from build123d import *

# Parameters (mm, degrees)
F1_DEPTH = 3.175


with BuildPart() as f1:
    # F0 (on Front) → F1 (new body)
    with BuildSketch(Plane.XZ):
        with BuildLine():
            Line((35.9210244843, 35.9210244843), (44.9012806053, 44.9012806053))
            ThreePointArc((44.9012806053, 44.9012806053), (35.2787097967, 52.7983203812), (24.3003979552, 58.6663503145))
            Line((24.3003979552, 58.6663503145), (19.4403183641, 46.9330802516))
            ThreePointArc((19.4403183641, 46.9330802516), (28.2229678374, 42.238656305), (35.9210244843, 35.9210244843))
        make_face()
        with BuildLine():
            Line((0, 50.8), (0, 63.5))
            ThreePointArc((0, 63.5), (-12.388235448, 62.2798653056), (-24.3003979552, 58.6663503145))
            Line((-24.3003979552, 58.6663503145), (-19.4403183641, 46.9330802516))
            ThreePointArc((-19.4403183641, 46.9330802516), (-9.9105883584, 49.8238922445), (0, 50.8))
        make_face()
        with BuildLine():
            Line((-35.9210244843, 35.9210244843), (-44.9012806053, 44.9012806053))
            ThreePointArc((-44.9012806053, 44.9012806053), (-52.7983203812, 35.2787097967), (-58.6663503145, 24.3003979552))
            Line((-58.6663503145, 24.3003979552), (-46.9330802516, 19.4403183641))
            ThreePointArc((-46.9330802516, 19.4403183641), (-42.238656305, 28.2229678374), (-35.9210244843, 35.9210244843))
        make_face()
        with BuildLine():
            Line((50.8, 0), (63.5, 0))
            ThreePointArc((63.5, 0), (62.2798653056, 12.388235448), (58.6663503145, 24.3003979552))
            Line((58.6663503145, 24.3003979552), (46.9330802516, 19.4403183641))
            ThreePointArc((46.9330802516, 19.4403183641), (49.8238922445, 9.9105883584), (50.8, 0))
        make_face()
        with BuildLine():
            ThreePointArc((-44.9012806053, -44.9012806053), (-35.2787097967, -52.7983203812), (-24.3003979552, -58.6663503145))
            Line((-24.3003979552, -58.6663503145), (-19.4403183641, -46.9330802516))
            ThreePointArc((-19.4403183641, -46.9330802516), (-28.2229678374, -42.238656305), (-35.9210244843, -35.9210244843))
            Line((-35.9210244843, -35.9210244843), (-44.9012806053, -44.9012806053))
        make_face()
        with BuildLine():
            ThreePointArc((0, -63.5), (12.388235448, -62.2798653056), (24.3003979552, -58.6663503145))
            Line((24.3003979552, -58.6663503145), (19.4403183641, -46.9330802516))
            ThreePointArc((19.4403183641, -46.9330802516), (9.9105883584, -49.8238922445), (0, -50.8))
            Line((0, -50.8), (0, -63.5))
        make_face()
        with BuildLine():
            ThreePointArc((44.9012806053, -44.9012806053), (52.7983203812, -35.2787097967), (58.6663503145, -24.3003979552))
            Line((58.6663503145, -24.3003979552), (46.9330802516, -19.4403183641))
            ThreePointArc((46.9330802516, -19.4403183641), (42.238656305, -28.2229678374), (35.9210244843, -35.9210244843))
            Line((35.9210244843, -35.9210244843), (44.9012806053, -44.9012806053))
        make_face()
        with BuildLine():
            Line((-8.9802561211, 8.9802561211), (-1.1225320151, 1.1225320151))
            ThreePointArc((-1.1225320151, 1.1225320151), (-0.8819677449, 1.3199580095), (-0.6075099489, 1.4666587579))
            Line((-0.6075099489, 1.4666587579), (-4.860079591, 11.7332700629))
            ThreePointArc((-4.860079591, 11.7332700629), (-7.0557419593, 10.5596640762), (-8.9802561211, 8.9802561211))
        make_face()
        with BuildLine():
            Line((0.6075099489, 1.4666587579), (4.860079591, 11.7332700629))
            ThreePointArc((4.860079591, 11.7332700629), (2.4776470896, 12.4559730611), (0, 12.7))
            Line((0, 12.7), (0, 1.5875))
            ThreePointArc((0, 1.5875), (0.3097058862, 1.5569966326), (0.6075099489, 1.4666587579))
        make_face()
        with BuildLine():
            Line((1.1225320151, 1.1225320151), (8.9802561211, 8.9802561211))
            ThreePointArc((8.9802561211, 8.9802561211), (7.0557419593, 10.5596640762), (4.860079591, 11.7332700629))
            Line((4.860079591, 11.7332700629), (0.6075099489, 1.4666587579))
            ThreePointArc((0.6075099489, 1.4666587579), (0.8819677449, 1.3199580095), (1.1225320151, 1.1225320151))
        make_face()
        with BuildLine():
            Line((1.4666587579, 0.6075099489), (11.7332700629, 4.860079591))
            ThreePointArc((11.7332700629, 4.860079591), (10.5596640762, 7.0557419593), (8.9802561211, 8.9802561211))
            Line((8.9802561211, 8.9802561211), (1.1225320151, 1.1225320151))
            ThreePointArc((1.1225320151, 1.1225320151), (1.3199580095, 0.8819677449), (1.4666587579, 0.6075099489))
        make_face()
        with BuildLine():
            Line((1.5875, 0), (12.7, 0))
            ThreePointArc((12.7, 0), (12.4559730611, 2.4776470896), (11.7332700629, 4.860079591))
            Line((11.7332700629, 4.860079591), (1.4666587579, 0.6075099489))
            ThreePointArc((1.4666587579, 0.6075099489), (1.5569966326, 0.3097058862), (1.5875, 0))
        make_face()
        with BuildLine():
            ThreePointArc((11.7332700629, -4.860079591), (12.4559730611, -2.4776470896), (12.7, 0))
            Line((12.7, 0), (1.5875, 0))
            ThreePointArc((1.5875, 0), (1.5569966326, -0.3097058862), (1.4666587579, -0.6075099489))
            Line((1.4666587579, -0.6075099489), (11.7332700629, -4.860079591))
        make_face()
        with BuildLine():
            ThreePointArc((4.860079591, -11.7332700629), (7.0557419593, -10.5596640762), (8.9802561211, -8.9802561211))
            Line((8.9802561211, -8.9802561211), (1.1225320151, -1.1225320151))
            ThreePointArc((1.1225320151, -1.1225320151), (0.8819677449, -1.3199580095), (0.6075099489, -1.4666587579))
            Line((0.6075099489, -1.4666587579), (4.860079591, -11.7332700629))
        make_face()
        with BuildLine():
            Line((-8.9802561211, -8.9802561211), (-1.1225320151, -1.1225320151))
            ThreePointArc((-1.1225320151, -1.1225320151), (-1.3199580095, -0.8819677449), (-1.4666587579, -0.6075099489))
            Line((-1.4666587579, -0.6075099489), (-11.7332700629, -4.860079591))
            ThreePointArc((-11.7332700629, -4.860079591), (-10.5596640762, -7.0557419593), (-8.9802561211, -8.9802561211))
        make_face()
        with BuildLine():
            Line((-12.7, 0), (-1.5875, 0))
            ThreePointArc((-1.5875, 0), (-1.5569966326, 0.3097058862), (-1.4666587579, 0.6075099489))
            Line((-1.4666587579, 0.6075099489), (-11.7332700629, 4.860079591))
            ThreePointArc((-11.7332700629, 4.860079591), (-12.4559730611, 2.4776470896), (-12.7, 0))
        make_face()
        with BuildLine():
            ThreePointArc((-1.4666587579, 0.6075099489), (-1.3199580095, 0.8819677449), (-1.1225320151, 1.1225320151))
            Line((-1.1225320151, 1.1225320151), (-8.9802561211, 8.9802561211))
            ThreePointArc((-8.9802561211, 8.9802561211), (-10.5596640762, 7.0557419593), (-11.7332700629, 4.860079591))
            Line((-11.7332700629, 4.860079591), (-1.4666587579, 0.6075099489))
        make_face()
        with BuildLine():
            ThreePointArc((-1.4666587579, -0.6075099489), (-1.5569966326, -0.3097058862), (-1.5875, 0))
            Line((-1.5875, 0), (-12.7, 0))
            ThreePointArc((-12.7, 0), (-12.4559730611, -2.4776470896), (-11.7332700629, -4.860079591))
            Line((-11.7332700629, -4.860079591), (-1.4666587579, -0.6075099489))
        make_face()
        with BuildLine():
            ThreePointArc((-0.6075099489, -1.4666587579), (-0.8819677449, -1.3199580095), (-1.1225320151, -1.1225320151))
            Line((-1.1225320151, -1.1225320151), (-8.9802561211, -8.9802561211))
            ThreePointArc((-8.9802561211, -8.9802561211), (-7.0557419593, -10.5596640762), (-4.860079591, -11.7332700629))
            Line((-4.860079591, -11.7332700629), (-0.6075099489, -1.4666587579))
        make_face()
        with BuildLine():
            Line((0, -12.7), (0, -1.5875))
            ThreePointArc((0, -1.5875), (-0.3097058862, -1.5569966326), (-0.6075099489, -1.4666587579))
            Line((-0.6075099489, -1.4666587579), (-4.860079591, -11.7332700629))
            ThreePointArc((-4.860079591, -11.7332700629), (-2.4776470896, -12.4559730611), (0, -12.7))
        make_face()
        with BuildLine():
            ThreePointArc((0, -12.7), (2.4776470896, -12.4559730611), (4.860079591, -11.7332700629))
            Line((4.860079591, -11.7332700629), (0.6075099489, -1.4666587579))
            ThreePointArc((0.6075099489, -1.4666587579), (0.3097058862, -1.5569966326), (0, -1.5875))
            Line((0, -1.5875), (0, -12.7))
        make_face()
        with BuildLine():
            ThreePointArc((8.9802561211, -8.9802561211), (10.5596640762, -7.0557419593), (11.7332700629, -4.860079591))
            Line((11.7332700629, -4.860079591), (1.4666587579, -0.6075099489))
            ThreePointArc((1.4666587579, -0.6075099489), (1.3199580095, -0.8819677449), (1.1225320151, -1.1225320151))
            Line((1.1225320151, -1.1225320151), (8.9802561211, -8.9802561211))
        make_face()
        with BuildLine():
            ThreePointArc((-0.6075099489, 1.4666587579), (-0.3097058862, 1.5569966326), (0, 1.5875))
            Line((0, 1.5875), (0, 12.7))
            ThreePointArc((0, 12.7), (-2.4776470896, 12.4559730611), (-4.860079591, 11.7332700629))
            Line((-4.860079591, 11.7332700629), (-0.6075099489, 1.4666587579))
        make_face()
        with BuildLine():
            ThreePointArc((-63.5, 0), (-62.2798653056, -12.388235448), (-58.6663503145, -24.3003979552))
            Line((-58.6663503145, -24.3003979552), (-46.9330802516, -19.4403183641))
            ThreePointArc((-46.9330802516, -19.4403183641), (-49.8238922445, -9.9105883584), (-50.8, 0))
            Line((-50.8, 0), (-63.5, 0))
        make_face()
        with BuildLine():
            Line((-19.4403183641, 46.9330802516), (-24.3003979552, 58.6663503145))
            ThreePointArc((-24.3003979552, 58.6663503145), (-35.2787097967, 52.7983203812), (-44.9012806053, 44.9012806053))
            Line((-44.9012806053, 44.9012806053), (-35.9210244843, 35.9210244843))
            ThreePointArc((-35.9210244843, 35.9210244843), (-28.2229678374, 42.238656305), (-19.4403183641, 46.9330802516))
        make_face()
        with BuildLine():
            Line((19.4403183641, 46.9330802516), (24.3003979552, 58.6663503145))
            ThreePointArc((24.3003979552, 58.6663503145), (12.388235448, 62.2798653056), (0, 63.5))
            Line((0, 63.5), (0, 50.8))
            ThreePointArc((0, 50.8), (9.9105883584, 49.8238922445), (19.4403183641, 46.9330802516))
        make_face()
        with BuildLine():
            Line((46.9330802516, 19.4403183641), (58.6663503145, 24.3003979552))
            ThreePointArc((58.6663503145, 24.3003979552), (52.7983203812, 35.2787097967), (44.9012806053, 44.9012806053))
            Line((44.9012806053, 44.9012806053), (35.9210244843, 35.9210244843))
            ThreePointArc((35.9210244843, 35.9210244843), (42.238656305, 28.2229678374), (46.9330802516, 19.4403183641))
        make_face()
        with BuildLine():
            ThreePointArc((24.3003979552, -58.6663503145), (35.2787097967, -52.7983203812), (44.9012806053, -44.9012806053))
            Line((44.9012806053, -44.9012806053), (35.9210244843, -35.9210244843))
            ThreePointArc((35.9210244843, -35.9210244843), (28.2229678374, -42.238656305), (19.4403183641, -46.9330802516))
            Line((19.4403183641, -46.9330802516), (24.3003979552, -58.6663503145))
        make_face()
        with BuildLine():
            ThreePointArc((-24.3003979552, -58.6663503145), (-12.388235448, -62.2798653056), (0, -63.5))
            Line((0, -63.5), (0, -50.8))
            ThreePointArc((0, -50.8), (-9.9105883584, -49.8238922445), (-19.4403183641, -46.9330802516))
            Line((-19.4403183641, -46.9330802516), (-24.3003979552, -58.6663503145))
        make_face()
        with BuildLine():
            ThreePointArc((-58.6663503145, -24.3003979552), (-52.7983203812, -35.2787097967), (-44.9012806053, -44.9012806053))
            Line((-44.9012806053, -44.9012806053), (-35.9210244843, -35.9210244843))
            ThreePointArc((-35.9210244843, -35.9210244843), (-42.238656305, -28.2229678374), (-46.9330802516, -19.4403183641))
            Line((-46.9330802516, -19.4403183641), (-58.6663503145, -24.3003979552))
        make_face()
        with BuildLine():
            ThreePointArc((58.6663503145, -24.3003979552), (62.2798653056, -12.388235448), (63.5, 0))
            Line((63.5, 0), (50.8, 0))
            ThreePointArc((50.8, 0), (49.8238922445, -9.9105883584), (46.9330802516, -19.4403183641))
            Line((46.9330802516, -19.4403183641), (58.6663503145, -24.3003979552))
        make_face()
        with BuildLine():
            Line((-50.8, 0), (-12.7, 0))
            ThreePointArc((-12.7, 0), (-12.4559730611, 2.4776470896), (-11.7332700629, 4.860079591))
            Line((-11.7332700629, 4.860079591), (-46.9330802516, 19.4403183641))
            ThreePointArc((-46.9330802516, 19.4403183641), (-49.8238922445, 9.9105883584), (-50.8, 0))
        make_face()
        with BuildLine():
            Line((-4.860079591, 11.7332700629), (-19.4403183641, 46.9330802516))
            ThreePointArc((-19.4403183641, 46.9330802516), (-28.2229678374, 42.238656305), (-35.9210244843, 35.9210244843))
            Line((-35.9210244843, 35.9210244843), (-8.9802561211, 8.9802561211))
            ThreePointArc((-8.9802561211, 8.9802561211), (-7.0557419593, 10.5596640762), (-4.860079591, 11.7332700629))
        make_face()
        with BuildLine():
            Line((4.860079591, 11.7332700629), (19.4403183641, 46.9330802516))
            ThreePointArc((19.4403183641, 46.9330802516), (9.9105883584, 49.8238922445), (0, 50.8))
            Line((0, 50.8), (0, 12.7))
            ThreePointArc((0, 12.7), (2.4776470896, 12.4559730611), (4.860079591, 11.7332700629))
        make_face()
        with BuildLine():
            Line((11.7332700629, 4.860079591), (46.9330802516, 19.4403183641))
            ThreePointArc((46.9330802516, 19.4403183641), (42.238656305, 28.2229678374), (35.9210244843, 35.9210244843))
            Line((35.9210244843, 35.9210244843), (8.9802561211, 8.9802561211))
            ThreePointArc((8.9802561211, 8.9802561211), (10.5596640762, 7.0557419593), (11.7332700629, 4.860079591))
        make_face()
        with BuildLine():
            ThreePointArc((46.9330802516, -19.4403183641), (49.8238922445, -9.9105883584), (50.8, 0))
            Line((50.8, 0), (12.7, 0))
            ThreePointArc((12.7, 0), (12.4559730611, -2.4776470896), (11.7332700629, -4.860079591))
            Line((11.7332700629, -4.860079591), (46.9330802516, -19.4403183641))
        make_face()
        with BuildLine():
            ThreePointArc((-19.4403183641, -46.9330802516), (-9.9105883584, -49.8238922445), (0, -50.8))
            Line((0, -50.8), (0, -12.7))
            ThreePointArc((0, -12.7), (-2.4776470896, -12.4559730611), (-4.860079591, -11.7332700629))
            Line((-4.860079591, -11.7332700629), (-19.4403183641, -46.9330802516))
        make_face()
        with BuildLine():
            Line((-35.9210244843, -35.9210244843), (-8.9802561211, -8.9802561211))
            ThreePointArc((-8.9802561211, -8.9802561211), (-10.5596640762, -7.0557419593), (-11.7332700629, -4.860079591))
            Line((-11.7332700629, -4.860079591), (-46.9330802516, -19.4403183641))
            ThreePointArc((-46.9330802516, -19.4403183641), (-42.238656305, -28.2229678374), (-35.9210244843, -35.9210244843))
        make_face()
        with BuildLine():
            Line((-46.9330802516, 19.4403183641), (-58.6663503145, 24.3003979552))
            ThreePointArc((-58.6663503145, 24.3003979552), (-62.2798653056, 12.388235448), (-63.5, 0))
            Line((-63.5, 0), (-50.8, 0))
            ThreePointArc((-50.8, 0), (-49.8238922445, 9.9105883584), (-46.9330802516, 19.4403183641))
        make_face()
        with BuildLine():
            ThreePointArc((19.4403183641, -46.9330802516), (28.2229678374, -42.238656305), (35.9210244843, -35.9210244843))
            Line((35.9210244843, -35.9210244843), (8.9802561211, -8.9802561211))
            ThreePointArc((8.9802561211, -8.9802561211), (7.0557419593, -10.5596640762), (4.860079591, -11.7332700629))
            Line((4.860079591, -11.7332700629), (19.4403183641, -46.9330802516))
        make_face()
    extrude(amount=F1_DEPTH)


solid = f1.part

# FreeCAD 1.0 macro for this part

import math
import FreeCAD as App
import Part
import Sketcher

V = App.Vector
Q = App.Units.Quantity

doc = App.newDocument("Part")
body = doc.addObject("PartDesign::Body", "Body")

# Sketch on XZ plane
sketch1 = body.newObject("Sketcher::SketchObject", "Sketch")
sketch1.AttachmentSupport = (doc.getObject("XZ_Plane"), [""])
sketch1.MapMode = "FlatFace"
sketch1.addGeometry([
    Part.ArcOfCircle(Part.Circle(V(0, 0, 0), V(0, 0, 1), 63.5), math.radians(135), math.radians(157)),  # 0
    Part.ArcOfCircle(Part.Circle(V(0, 0, 0), V(0, 0, 1), 63.5), math.radians(158), math.radians(180)),  # 1
    Part.ArcOfCircle(Part.Circle(V(0, 0, 0), V(0, 0, 1), 63.5), math.radians(180), math.radians(202)),  # 2
    Part.ArcOfCircle(Part.Circle(V(0, 0, 0), V(0, 0, 1), 63.5), math.radians(-157), math.radians(-135)),  # 3
    Part.ArcOfCircle(Part.Circle(V(0, 0, 0), V(0, 0, 1), 63.5), math.radians(-135), math.radians(-113)),  # 4
    Part.ArcOfCircle(Part.Circle(V(0, 0, 0), V(0, 0, 1), 63.5), math.radians(-112), math.radians(-90)),  # 5
    Part.ArcOfCircle(Part.Circle(V(0, 0, 0), V(0, 0, 1), 63.5), math.radians(-90), math.radians(-68)),  # 6
    Part.ArcOfCircle(Part.Circle(V(0, 0, 0), V(0, 0, 1), 63.5), math.radians(-67), math.radians(-45)),  # 7
    Part.ArcOfCircle(Part.Circle(V(0, 0, 0), V(0, 0, 1), 63.5), math.radians(-45), math.radians(-23)),  # 8
    Part.ArcOfCircle(Part.Circle(V(0, 0, 0), V(0, 0, 1), 63.5), math.radians(-22), math.radians(0)),  # 9
    Part.ArcOfCircle(Part.Circle(V(0, 0, 0), V(0, 0, 1), 63.5), math.radians(0), math.radians(22)),  # 10
    Part.ArcOfCircle(Part.Circle(V(0, 0, 0), V(0, 0, 1), 63.5), math.radians(23), math.radians(45)),  # 11
    Part.ArcOfCircle(Part.Circle(V(0, 0, 0), V(0, 0, 1), 63.5), math.radians(45), math.radians(67)),  # 12
    Part.ArcOfCircle(Part.Circle(V(0, 0, 0), V(0, 0, 1), 63.5), math.radians(68), math.radians(90)),  # 13
    Part.ArcOfCircle(Part.Circle(V(0, 0, 0), V(0, 0, 1), 63.5), math.radians(90), math.radians(112)),  # 14
    Part.ArcOfCircle(Part.Circle(V(0, 0, 0), V(0, 0, 1), 63.5), math.radians(113), math.radians(135)),  # 15
    Part.ArcOfCircle(Part.Circle(V(0, 0, 0), V(0, 0, 1), 50.8), math.radians(-135), math.radians(-112)),  # 16
    Part.LineSegment(V(-35.9, -35.9, 0), V(-9, -9, 0)),  # 17
    Part.ArcOfCircle(Part.Circle(V(0, 0, 0), V(0, 0, 1), 12.7), math.radians(-135), math.radians(-113)),  # 18
    Part.LineSegment(V(-4.9, -11.7, 0), V(-19.4, -46.9, 0)),  # 19
    Part.ArcOfCircle(Part.Circle(V(0, 0, 0), V(0, 0, 1), 50.8), math.radians(180), math.radians(202)),  # 20
    Part.LineSegment(V(-50.8, 0, 0), V(-12.7, 0, 0)),  # 21
    Part.ArcOfCircle(Part.Circle(V(0, 0, 0), V(0, 0, 1), 12.7), math.radians(180), math.radians(202)),  # 22
    Part.LineSegment(V(-11.7, -4.9, 0), V(-46.9, -19.4, 0)),  # 23
    Part.ArcOfCircle(Part.Circle(V(0, 0, 0), V(0, 0, 1), 50.8), math.radians(-90), math.radians(-68)),  # 24
    Part.LineSegment(V(0, -50.8, 0), V(0, -12.7, 0)),  # 25
    Part.ArcOfCircle(Part.Circle(V(0, 0, 0), V(0, 0, 1), 12.7), math.radians(-90), math.radians(-68)),  # 26
    Part.LineSegment(V(4.9, -11.7, 0), V(19.4, -46.9, 0)),  # 27
    Part.ArcOfCircle(Part.Circle(V(0, 0, 0), V(0, 0, 1), 12.7), math.radians(-45), math.radians(-23)),  # 28
    Part.LineSegment(V(11.7, -4.9, 0), V(46.9, -19.4, 0)),  # 29
    Part.ArcOfCircle(Part.Circle(V(0, 0, 0), V(0, 0, 1), 50.8), math.radians(-45), math.radians(-22)),  # 30
    Part.LineSegment(V(35.9, -35.9, 0), V(9, -9, 0)),  # 31
    Part.ArcOfCircle(Part.Circle(V(0, 0, 0), V(0, 0, 1), 1.6), math.radians(113), math.radians(135)),  # 32
    Part.ArcOfCircle(Part.Circle(V(0, 0, 0), V(0, 0, 1), 1.6), math.radians(90), math.radians(112)),  # 33
    Part.ArcOfCircle(Part.Circle(V(0, 0, 0), V(0, 0, 1), 1.6), math.radians(68), math.radians(90)),  # 34
    Part.ArcOfCircle(Part.Circle(V(0, 0, 0), V(0, 0, 1), 1.6), math.radians(45), math.radians(67)),  # 35
    Part.ArcOfCircle(Part.Circle(V(0, 0, 0), V(0, 0, 1), 1.6), math.radians(23), math.radians(45)),  # 36
    Part.ArcOfCircle(Part.Circle(V(0, 0, 0), V(0, 0, 1), 1.6), math.radians(0), math.radians(22)),  # 37
    Part.ArcOfCircle(Part.Circle(V(0, 0, 0), V(0, 0, 1), 1.6), math.radians(-22), math.radians(0)),  # 38
    Part.ArcOfCircle(Part.Circle(V(0, 0, 0), V(0, 0, 1), 1.6), math.radians(-45), math.radians(-23)),  # 39
    Part.ArcOfCircle(Part.Circle(V(0, 0, 0), V(0, 0, 1), 1.6), math.radians(-67), math.radians(-45)),  # 40
    Part.ArcOfCircle(Part.Circle(V(0, 0, 0), V(0, 0, 1), 1.6), math.radians(-90), math.radians(-68)),  # 41
    Part.ArcOfCircle(Part.Circle(V(0, 0, 0), V(0, 0, 1), 1.6), math.radians(-112), math.radians(-90)),  # 42
    Part.ArcOfCircle(Part.Circle(V(0, 0, 0), V(0, 0, 1), 1.6), math.radians(-135), math.radians(-113)),  # 43
    Part.ArcOfCircle(Part.Circle(V(0, 0, 0), V(0, 0, 1), 1.6), math.radians(-157), math.radians(-135)),  # 44
    Part.ArcOfCircle(Part.Circle(V(0, 0, 0), V(0, 0, 1), 1.6), math.radians(-180), math.radians(-158)),  # 45
    Part.ArcOfCircle(Part.Circle(V(0, 0, 0), V(0, 0, 1), 1.6), math.radians(158), math.radians(180)),  # 46
    Part.ArcOfCircle(Part.Circle(V(0, 0, 0), V(0, 0, 1), 1.6), math.radians(135), math.radians(157)),  # 47
    Part.LineSegment(V(-11.7, 4.9, 0), V(-46.9, 19.4, 0)),  # 48
    Part.ArcOfCircle(Part.Circle(V(0, 0, 0), V(0, 0, 1), 50.8), math.radians(135), math.radians(158)),  # 49
    Part.LineSegment(V(-35.9, 35.9, 0), V(-9, 9, 0)),  # 50
    Part.ArcOfCircle(Part.Circle(V(0, 0, 0), V(0, 0, 1), 12.7), math.radians(135), math.radians(157)),  # 51
    Part.ArcOfCircle(Part.Circle(V(0, 0, 0), V(0, 0, 1), 50.8), math.radians(90), math.radians(112)),  # 52
    Part.LineSegment(V(0, 50.8, 0), V(0, 12.7, 0)),  # 53
    Part.ArcOfCircle(Part.Circle(V(0, 0, 0), V(0, 0, 1), 12.7), math.radians(90), math.radians(112)),  # 54
    Part.LineSegment(V(-4.9, 11.7, 0), V(-19.4, 46.9, 0)),  # 55
    Part.ArcOfCircle(Part.Circle(V(0, 0, 0), V(0, 0, 1), 50.8), math.radians(0), math.radians(22)),  # 56
    Part.LineSegment(V(50.8, 0, 0), V(12.7, 0, 0)),  # 57
    Part.ArcOfCircle(Part.Circle(V(0, 0, 0), V(0, 0, 1), 12.7), math.radians(0), math.radians(22)),  # 58
    Part.LineSegment(V(11.7, 4.9, 0), V(46.9, 19.4, 0)),  # 59
    Part.ArcOfCircle(Part.Circle(V(0, 0, 0), V(0, 0, 1), 50.8), math.radians(45), math.radians(68)),  # 60
    Part.LineSegment(V(35.9, 35.9, 0), V(9, 9, 0)),  # 61
    Part.ArcOfCircle(Part.Circle(V(0, 0, 0), V(0, 0, 1), 12.7), math.radians(45), math.radians(67)),  # 62
    Part.LineSegment(V(4.9, 11.7, 0), V(19.4, 46.9, 0)),  # 63
], False)
sketch1.addConstraint([
    Sketcher.Constraint("Tangent", 0, 2, 1, 1),
    Sketcher.Constraint("Tangent", 1, 2, 2, 1),
    Sketcher.Constraint("Tangent", 2, 2, 3, 1),
    Sketcher.Constraint("Tangent", 3, 2, 4, 1),
    Sketcher.Constraint("Tangent", 4, 2, 5, 1),
    Sketcher.Constraint("Tangent", 5, 2, 6, 1),
    Sketcher.Constraint("Tangent", 6, 2, 7, 1),
    Sketcher.Constraint("Tangent", 7, 2, 8, 1),
    Sketcher.Constraint("Tangent", 8, 2, 9, 1),
    Sketcher.Constraint("Tangent", 9, 2, 10, 1),
    Sketcher.Constraint("Tangent", 10, 2, 11, 1),
    Sketcher.Constraint("Tangent", 11, 2, 12, 1),
    Sketcher.Constraint("Tangent", 12, 2, 13, 1),
    Sketcher.Constraint("Tangent", 13, 2, 14, 1),
    Sketcher.Constraint("Tangent", 14, 2, 15, 1),
    Sketcher.Constraint("Tangent", 15, 2, 0, 1),
    Sketcher.Constraint("Coincident", 16, 1, 17, 1),
    Sketcher.Constraint("Coincident", 17, 2, 18, 1),
    Sketcher.Constraint("Coincident", 18, 2, 19, 1),
    Sketcher.Constraint("Coincident", 19, 2, 16, 2),
    Sketcher.Constraint("Coincident", 20, 1, 21, 1),
    Sketcher.Constraint("Coincident", 21, 2, 22, 1),
    Sketcher.Constraint("Coincident", 22, 2, 23, 1),
    Sketcher.Constraint("Coincident", 23, 2, 20, 2),
    Sketcher.Constraint("Coincident", 24, 1, 25, 1),
    Sketcher.Constraint("Coincident", 25, 2, 26, 1),
    Sketcher.Constraint("Coincident", 26, 2, 27, 1),
    Sketcher.Constraint("Coincident", 27, 2, 24, 2),
    Sketcher.Constraint("Coincident", 28, 2, 29, 1),
    Sketcher.Constraint("Coincident", 29, 2, 30, 2),
    Sketcher.Constraint("Coincident", 30, 1, 31, 1),
    Sketcher.Constraint("Coincident", 31, 2, 28, 1),
    Sketcher.Constraint("Tangent", 32, 1, 33, 2),
    Sketcher.Constraint("Tangent", 33, 1, 34, 2),
    Sketcher.Constraint("Tangent", 34, 1, 35, 2),
    Sketcher.Constraint("Tangent", 35, 1, 36, 2),
    Sketcher.Constraint("Tangent", 36, 1, 37, 2),
    Sketcher.Constraint("Tangent", 37, 1, 38, 2),
    Sketcher.Constraint("Tangent", 38, 1, 39, 2),
    Sketcher.Constraint("Tangent", 39, 1, 40, 2),
    Sketcher.Constraint("Tangent", 40, 1, 41, 2),
    Sketcher.Constraint("Tangent", 41, 1, 42, 2),
    Sketcher.Constraint("Tangent", 42, 1, 43, 2),
    Sketcher.Constraint("Tangent", 43, 1, 44, 2),
    Sketcher.Constraint("Tangent", 44, 1, 45, 2),
    Sketcher.Constraint("Tangent", 45, 1, 46, 2),
    Sketcher.Constraint("Tangent", 46, 1, 47, 2),
    Sketcher.Constraint("Tangent", 47, 1, 32, 2),
    Sketcher.Constraint("Coincident", 48, 2, 49, 2),
    Sketcher.Constraint("Coincident", 49, 1, 50, 1),
    Sketcher.Constraint("Coincident", 50, 2, 51, 1),
    Sketcher.Constraint("Coincident", 51, 2, 48, 1),
    Sketcher.Constraint("Coincident", 52, 1, 53, 1),
    Sketcher.Constraint("Coincident", 53, 2, 54, 1),
    Sketcher.Constraint("Coincident", 54, 2, 55, 1),
    Sketcher.Constraint("Coincident", 55, 2, 52, 2),
    Sketcher.Constraint("Coincident", 56, 1, 57, 1),
    Sketcher.Constraint("Coincident", 57, 2, 58, 1),
    Sketcher.Constraint("Coincident", 58, 2, 59, 1),
    Sketcher.Constraint("Coincident", 59, 2, 56, 2),
    Sketcher.Constraint("Coincident", 60, 1, 61, 1),
    Sketcher.Constraint("Coincident", 61, 2, 62, 1),
    Sketcher.Constraint("Coincident", 62, 2, 63, 1),
    Sketcher.Constraint("Coincident", 63, 2, 60, 2),
    Sketcher.Constraint("Horizontal", 21),
    Sketcher.Constraint("Vertical", 25),
    Sketcher.Constraint("Vertical", 53),
    Sketcher.Constraint("Horizontal", 57),
    Sketcher.Constraint("Coincident", 0, 3, -1, 1),
    Sketcher.Constraint("Coincident", 2, 3, -1, 1),
    Sketcher.Constraint("Coincident", 4, 3, -1, 1),
    Sketcher.Constraint("Coincident", 6, 3, -1, 1),
    Sketcher.Constraint("Coincident", 8, 3, -1, 1),
    Sketcher.Constraint("Coincident", 10, 3, -1, 1),
    Sketcher.Constraint("Coincident", 12, 3, -1, 1),
    Sketcher.Constraint("Coincident", 16, 3, -1, 1),
    Sketcher.Constraint("Coincident", 18, 3, -1, 1),
    Sketcher.Constraint("Coincident", 20, 3, -1, 1),
    Sketcher.Constraint("Coincident", 22, 3, -1, 1),
    Sketcher.Constraint("Coincident", 24, 3, -1, 1),
    Sketcher.Constraint("Coincident", 26, 3, -1, 1),
    Sketcher.Constraint("Coincident", 28, 3, -1, 1),
    Sketcher.Constraint("Coincident", 30, 3, -1, 1),
    Sketcher.Constraint("Coincident", 32, 3, -1, 1),
    Sketcher.Constraint("Coincident", 34, 3, -1, 1),
    Sketcher.Constraint("Coincident", 36, 3, -1, 1),
    Sketcher.Constraint("Coincident", 38, 3, -1, 1),
    Sketcher.Constraint("Coincident", 40, 3, -1, 1),
    Sketcher.Constraint("Coincident", 42, 3, -1, 1),
    Sketcher.Constraint("Coincident", 44, 3, -1, 1),
    Sketcher.Constraint("Coincident", 49, 3, -1, 1),
    Sketcher.Constraint("Coincident", 51, 3, -1, 1),
    Sketcher.Constraint("Coincident", 52, 3, -1, 1),
    Sketcher.Constraint("Coincident", 54, 3, -1, 1),
    Sketcher.Constraint("Coincident", 56, 3, -1, 1),
    Sketcher.Constraint("Coincident", 58, 3, -1, 1),
    Sketcher.Constraint("Coincident", 60, 3, -1, 1),
    Sketcher.Constraint("Coincident", 62, 3, -1, 1),
    Sketcher.Constraint("Equal", 12, 13),
    Sketcher.Constraint("Equal", 16, 20),
    Sketcher.Constraint("Equal", 18, 22),
    Sketcher.Constraint("Equal", 20, 24),
    Sketcher.Constraint("Equal", 22, 26),
    Sketcher.Constraint("Equal", 26, 28),
    Sketcher.Constraint("Equal", 24, 30),
    Sketcher.Constraint("Equal", 44, 45),
    Sketcher.Constraint("Equal", 30, 49),
    Sketcher.Constraint("Equal", 28, 51),
    Sketcher.Constraint("Equal", 49, 52),
    Sketcher.Constraint("Equal", 51, 54),
    Sketcher.Constraint("Equal", 52, 56),
    Sketcher.Constraint("Equal", 54, 58),
    Sketcher.Constraint("Equal", 56, 60),
    Sketcher.Constraint("Equal", 58, 62),
    Sketcher.Constraint("PointOnObject", 1, 2, -1),
    Sketcher.Constraint("PointOnObject", 5, 2, -2),
    Sketcher.Constraint("PointOnObject", 9, 2, -1),
    Sketcher.Constraint("PointOnObject", 13, 2, -2),
    Sketcher.Constraint("PointOnObject", 20, 1, -1),
    Sketcher.Constraint("PointOnObject", 24, 1, -2),
    Sketcher.Constraint("PointOnObject", 33, 1, -2),
    Sketcher.Constraint("PointOnObject", 37, 1, -1),
    Sketcher.Constraint("PointOnObject", 41, 1, -2),
    Sketcher.Constraint("PointOnObject", 45, 1, -1),
    Sketcher.Constraint("PointOnObject", 52, 1, -2),
    Sketcher.Constraint("PointOnObject", 56, 1, -1),
    Sketcher.Constraint("Perpendicular", 23, 27),
    Sketcher.Constraint("Perpendicular", 19, 29),
    Sketcher.Constraint("Perpendicular", 17, 31),
    Sketcher.Constraint("Parallel", 29, 48),
    Sketcher.Constraint("Parallel", 31, 50),
    Sketcher.Constraint("Parallel", 27, 55),
    Sketcher.Constraint("Perpendicular", 55, 59),
    Sketcher.Constraint("Perpendicular", 50, 61),
    Sketcher.Constraint("Perpendicular", 48, 63),
    Sketcher.Constraint("Horizontal", 4, 2, 6, 2),
    Sketcher.Constraint("Horizontal", 3, 2, 7, 2),
    Sketcher.Constraint("Horizontal", 2, 2, 8, 2),
    Sketcher.Constraint("Horizontal", 0, 2, 10, 2),
    Sketcher.Constraint("Horizontal", 12, 2, 14, 2),
    Sketcher.Constraint("Horizontal", 11, 2, 15, 2),
    Sketcher.Constraint("Horizontal", 18, 2, 26, 2),
    Sketcher.Constraint("Horizontal", 19, 2, 27, 2),
    Sketcher.Constraint("Horizontal", 22, 2, 28, 2),
    Sketcher.Constraint("Horizontal", 16, 1, 30, 1),
    Sketcher.Constraint("Horizontal", 17, 2, 31, 2),
    Sketcher.Constraint("Horizontal", 32, 1, 34, 1),
    Sketcher.Constraint("Horizontal", 40, 1, 42, 1),
    Sketcher.Constraint("Horizontal", 39, 1, 43, 1),
    Sketcher.Constraint("Horizontal", 38, 1, 44, 1),
    Sketcher.Constraint("Horizontal", 36, 1, 46, 1),
    Sketcher.Constraint("Horizontal", 35, 1, 47, 1),
    Sketcher.Constraint("Horizontal", 51, 2, 58, 2),
    Sketcher.Constraint("Horizontal", 49, 1, 60, 1),
    Sketcher.Constraint("Horizontal", 54, 2, 62, 2),
    Sketcher.Constraint("Vertical", 0, 2, 2, 2),
    Sketcher.Constraint("Vertical", 7, 2, 11, 2),
    Sketcher.Constraint("Vertical", 6, 2, 12, 2),
    Sketcher.Constraint("Vertical", 36, 1, 38, 1),
    Sketcher.Constraint("Vertical", 35, 1, 39, 1),
    Sketcher.Constraint("Vertical", 34, 1, 40, 1),
    Sketcher.Constraint("Vertical", 23, 2, 48, 2),
    Sketcher.Constraint("Vertical", 16, 1, 49, 1),
    Sketcher.Constraint("Vertical", 18, 2, 54, 2),
    Sketcher.Constraint("Radius", 16, Q("2 in")),
    Sketcher.Constraint("Radius", 0, Q("2.5 in")),
    Sketcher.Constraint("Radius", 18, Q("0.5 in")),
    Sketcher.Constraint("Radius", 32, Q("0.0625 in")),
    Sketcher.Constraint("Angle", 19, Q("-112.5 deg")),
    Sketcher.Constraint("DistanceX", 0, 2, -1, 1, Q("58.66635 mm")),
    Sketcher.Constraint("DistanceX", 3, 2, -1, 1, Q("44.901281 mm")),
    Sketcher.Constraint("DistanceY", 4, 2, -1, 1, Q("58.66635 mm")),
    Sketcher.Constraint("DistanceX", 18, 2, -1, 1, Q("4.86008 mm")),
    Sketcher.Constraint("DistanceX", 22, 2, -1, 1, Q("11.73327 mm")),
    Sketcher.Constraint("DistanceX", 32, 1, -1, 1, Q("0.60751 mm")),
    Sketcher.Constraint("DistanceX", -1, 1, 36, 1, Q("1.466659 mm")),
    Sketcher.Constraint("DistanceX", 16, 1, -1, 1, Q("35.921024 mm")),
    Sketcher.Constraint("DistanceX", -1, 1, 35, 1, Q("1.122532 mm")),
])
pad1 = body.newObject("PartDesign::Pad", "Pad")
pad1.Profile = sketch1
pad1.Length = Q("0.125 in")

doc.recompute()
